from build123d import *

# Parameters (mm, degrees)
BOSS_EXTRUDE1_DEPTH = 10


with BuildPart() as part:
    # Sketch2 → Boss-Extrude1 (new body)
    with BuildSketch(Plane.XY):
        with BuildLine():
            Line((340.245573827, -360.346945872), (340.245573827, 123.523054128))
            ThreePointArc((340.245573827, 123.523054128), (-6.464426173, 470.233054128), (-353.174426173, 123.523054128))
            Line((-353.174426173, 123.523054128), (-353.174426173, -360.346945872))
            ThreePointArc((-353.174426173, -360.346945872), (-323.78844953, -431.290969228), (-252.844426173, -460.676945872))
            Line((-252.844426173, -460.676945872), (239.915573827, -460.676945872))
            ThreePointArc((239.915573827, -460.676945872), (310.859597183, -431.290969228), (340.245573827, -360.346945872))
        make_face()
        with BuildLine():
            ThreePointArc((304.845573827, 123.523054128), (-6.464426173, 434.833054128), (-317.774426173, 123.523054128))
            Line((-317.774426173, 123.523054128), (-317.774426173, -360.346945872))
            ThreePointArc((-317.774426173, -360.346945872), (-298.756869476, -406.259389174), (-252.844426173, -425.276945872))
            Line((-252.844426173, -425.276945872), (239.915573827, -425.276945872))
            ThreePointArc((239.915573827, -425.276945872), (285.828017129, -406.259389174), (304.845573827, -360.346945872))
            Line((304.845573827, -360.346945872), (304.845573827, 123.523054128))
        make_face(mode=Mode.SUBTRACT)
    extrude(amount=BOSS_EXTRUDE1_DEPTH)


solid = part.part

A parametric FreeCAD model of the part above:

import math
import FreeCAD as App
import Part
import Sketcher
Q = App.Units.Quantity

doc = App.newDocument("Part")
params = doc.addObject("Spreadsheet::Sheet", "Params")
for row, (alias, value) in enumerate([
    ("sketch1_radius", "13.65 in"),
    ("sketch1_radius2", "3.95 in"),
    ("sketch1_height", "19.05 in"),
    ("pad1_length", "10 mm"),
], start=1):
    params.set(f"A{row}", alias)
    params.set(f"B{row}", "=" + value)
    params.setAlias(f"B{row}", alias)

body = doc.addObject("PartDesign::Body", "Body")

sketch1 = body.newObject("Sketcher::SketchObject", "Sketch")
sketch1.AttachmentSupport = (doc.getObject("XY_Plane"), [""])
sketch1.MapMode = "FlatFace"
sketch1.addGeometry(Part.LineSegment(App.Vector(340, -360, 0), App.Vector(340, 124, 0)), False)
sketch1.addGeometry(Part.ArcOfCircle(Part.Circle(App.Vector(-6, 124, 0), App.Vector(0, 0, 1), 347), math.radians(0), math.radians(180)), False)
sketch1.addGeometry(Part.LineSegment(App.Vector(-353, 124, 0), App.Vector(-353, -360, 0)), False)
sketch1.addGeometry(Part.ArcOfCircle(Part.Circle(App.Vector(-253, -360, 0), App.Vector(0, 0, 1), 100), math.radians(180), math.radians(270)), False)
sketch1.addGeometry(Part.LineSegment(App.Vector(-253, -461, 0), App.Vector(240, -461, 0)), False)
sketch1.addGeometry(Part.ArcOfCircle(Part.Circle(App.Vector(240, -360, 0), App.Vector(0, 0, 1), 100), math.radians(-90), math.radians(0)), False)
sketch1.addGeometry(Part.ArcOfCircle(Part.Circle(App.Vector(-6, 124, 0), App.Vector(0, 0, 1), 311), math.radians(0), math.radians(180)), False)
sketch1.addGeometry(Part.LineSegment(App.Vector(305, 124, 0), App.Vector(305, -360, 0)), False)
sketch1.addGeometry(Part.ArcOfCircle(Part.Circle(App.Vector(240, -360, 0), App.Vector(0, 0, 1), 65), math.radians(-90), math.radians(0)), False)
sketch1.addGeometry(Part.LineSegment(App.Vector(240, -425, 0), App.Vector(-253, -425, 0)), False)
sketch1.addGeometry(Part.ArcOfCircle(Part.Circle(App.Vector(-253, -360, 0), App.Vector(0, 0, 1), 65), math.radians(180), math.radians(270)), False)
sketch1.addGeometry(Part.LineSegment(App.Vector(-318, -360, 0), App.Vector(-318, 124, 0)), False)
sketch1.addConstraint(Sketcher.Constraint("Tangent", 0, 2, 1, 1))
sketch1.addConstraint(Sketcher.Constraint("Tangent", 1, 2, 2, 1))
sketch1.addConstraint(Sketcher.Constraint("Tangent", 2, 2, 3, 1))
sketch1.addConstraint(Sketcher.Constraint("Tangent", 3, 2, 4, 1))
sketch1.addConstraint(Sketcher.Constraint("Tangent", 4, 2, 5, 1))
sketch1.addConstraint(Sketcher.Constraint("Tangent", 5, 2, 0, 1))
sketch1.addConstraint(Sketcher.Constraint("Tangent", 6, 1, 7, 1))
sketch1.addConstraint(Sketcher.Constraint("Tangent", 7, 2, 8, 2))
sketch1.addConstraint(Sketcher.Constraint("Tangent", 8, 1, 9, 1))
sketch1.addConstraint(Sketcher.Constraint("Tangent", 9, 2, 10, 2))
sketch1.addConstraint(Sketcher.Constraint("Tangent", 10, 1, 11, 1))
sketch1.addConstraint(Sketcher.Constraint("Tangent", 11, 2, 6, 2))
sketch1.addConstraint(Sketcher.Constraint("Vertical", 0))
sketch1.addConstraint(Sketcher.Constraint("Vertical", 2))
sketch1.addConstraint(Sketcher.Constraint("Horizontal", 4))
sketch1.addConstraint(Sketcher.Constraint("Vertical", 7))
sketch1.addConstraint(Sketcher.Constraint("Horizontal", 9))
sketch1.addConstraint(Sketcher.Constraint("Vertical", 11))
sketch1.addConstraint(Sketcher.Constraint("Coincident", 6, 3, 1, 3))
sketch1.addConstraint(Sketcher.Constraint("Coincident", 8, 3, 5, 3))
sketch1.addConstraint(Sketcher.Constraint("Equal", 3, 5))
sketch1.addConstraint(Sketcher.Constraint("Equal", 8, 10))
sketch1.addConstraint(Sketcher.Constraint("Radius", 1, Q("13.65 in")))
sketch1.addConstraint(Sketcher.Constraint("Radius", 3, Q("3.95 in")))
sketch1.addConstraint(Sketcher.Constraint("DistanceY", 0, 1, 0, 2, Q("19.05 in")))
sketch1.addConstraint(Sketcher.Constraint("Radius", 6, Q("311.31 mm")))
sketch1.addConstraint(Sketcher.Constraint("DistanceX", 1, 3, -1, 1, Q("6.464426 mm")))
sketch1.addConstraint(Sketcher.Constraint("DistanceY", -1, 1, 1, 3, Q("123.523054 mm")))
sketch1.setExpression("Constraints[22]", "Params.sketch1_radius")
sketch1.setExpression("Constraints[23]", "Params.sketch1_radius2")
sketch1.setExpression("Constraints[24]", "Params.sketch1_height")
pad1 = body.newObject("PartDesign::Pad", "Pad")
pad1.Profile = sketch1
pad1.setExpression("Length", "Params.pad1_length")

doc.recompute()
